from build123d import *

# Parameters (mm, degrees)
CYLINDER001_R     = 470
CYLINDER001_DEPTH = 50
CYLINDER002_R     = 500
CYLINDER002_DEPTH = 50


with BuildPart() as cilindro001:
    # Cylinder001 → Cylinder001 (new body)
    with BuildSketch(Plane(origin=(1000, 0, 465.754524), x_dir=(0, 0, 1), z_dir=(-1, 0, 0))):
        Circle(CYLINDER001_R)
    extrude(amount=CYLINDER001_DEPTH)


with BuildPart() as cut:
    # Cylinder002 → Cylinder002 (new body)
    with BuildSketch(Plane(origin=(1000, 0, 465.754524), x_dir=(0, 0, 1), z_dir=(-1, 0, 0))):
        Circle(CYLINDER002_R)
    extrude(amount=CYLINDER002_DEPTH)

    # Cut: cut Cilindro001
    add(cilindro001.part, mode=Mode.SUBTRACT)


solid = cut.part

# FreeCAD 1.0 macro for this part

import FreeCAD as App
import Part
import Sketcher

V = App.Vector

doc = App.newDocument("Part")
body = doc.addObject("PartDesign::Body", "Body")

sketch1 = body.newObject("Sketcher::SketchObject", "Sketch")
sketch1.AttachmentSupport = (doc.getObject("YZ_Plane"), [""])
sketch1.MapMode = "FlatFace"
sketch1.AttachmentOffset = App.Placement(V(0, 0, 1000), App.Rotation())
sketch1.addGeometry(Part.Circle(V(0, 466, 0), V(0, 0, 1), 470), False)
sketch1.addConstraint([
    Sketcher.Constraint("PointOnObject", 0, 3, -2),
    Sketcher.Constraint("Diameter", 0, 940.0),
    Sketcher.Constraint("DistanceY", -1, 1, 0, 3, 465.754524),
])
pad1 = body.newObject("PartDesign::Pad", "Pad")
pad1.Profile = sketch1
pad1.Length = 50
pad1.Reversed = True
body2 = doc.addObject("PartDesign::Body", "Body001")

sketch2 = body2.newObject("Sketcher::SketchObject", "Sketch001")
sketch2.AttachmentSupport = (doc.getObject("YZ_Plane001"), [""])
sketch2.MapMode = "FlatFace"
sketch2.AttachmentOffset = App.Placement(V(0, 0, 1000), App.Rotation())
sketch2.addGeometry(Part.Circle(V(0, 466, 0), V(0, 0, 1), 500), False)
sketch2.addConstraint([
    Sketcher.Constraint("PointOnObject", 0, 3, -2),
    Sketcher.Constraint("Diameter", 0, 1000.0),
    Sketcher.Constraint("DistanceY", -1, 1, 0, 3, 465.754524),
])
pad2 = body2.newObject("PartDesign::Pad", "Pad001")
pad2.Profile = sketch2
pad2.Length = 50
pad2.Reversed = True
doc.recompute()

boolean = body2.newObject("PartDesign::Boolean", "Boolean")
boolean.Type = "Cut"
boolean.addObjects([body])

doc.recompute()
